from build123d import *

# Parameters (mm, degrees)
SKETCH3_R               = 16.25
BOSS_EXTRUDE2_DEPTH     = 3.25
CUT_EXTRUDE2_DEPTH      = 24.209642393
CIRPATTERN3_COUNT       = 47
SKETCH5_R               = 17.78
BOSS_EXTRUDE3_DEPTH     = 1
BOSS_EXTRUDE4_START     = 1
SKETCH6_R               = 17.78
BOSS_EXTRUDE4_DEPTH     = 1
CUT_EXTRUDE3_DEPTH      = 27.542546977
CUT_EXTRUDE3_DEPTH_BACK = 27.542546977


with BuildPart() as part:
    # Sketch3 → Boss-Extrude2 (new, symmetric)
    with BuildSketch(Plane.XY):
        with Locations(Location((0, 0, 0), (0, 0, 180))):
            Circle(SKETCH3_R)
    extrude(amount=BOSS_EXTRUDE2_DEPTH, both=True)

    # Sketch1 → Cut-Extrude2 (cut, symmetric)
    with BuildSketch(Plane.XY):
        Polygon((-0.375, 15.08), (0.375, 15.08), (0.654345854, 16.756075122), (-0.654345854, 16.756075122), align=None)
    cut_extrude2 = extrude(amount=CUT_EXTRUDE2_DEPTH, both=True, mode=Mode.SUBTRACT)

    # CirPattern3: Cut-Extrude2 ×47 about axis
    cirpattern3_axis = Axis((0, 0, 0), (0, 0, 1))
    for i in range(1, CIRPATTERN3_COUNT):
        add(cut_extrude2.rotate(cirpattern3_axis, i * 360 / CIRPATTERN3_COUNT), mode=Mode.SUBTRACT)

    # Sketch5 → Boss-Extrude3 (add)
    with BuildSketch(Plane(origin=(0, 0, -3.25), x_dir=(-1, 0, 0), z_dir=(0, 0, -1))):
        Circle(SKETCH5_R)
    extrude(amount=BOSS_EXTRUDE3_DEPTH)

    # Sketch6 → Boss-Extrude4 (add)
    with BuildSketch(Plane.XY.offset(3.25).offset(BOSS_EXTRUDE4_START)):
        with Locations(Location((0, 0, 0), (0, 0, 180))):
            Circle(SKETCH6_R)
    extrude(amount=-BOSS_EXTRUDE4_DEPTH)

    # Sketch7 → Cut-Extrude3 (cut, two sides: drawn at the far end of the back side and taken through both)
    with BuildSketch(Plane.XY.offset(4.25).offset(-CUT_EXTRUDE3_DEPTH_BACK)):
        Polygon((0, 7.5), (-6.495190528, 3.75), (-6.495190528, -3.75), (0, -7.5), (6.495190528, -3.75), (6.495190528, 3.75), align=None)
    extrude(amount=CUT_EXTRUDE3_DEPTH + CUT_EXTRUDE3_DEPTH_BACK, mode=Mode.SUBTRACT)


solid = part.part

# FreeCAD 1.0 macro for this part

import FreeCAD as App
import Part
import Sketcher
from FreeCAD import Vector
Q = App.Units.Quantity

doc = App.newDocument("Part")
body = doc.addObject("PartDesign::Body", "Body")

# Sketch on XY plane
sketch1 = doc.addObject("Sketcher::SketchObject", "Sketch")
body.addObject(sketch1)
sketch1.AttachmentSupport = (doc.XY_Plane, [""])
sketch1.MapMode = "FlatFace"
sketch1.addGeometry(Part.Circle(Vector(0, 0, 0), Vector(0, 0, 1), 16.25), False)
sketch1.addConstraint(Sketcher.Constraint("Coincident", 0, 3, -1, 1))
sketch1.addConstraint(Sketcher.Constraint("Diameter", 0, Q("32.5 mm")))
pad1 = doc.addObject("PartDesign::Pad", "Pad")
body.addObject(pad1)
pad1.Profile = sketch1
pad1.Length = 6.5
pad1.Midplane = True

# Sketch on XY plane
sketch2 = doc.addObject("Sketcher::SketchObject", "Sketch001")
body.addObject(sketch2)
sketch2.AttachmentSupport = (doc.XY_Plane, [""])
sketch2.MapMode = "FlatFace"
sketch2.addGeometry(Part.LineSegment(Vector(-0.375, 15.08, 0), Vector(0.375, 15.08, 0)), False)
sketch2.addGeometry(Part.LineSegment(Vector(0.375, 15.08, 0), Vector(0.654346, 16.756075, 0)), False)
sketch2.addGeometry(Part.LineSegment(Vector(0.654346, 16.756075, 0), Vector(-0.654346, 16.756075, 0)), False)
sketch2.addGeometry(Part.LineSegment(Vector(-0.654346, 16.756075, 0), Vector(-0.375, 15.08, 0)), False)
sketch2.addConstraint(Sketcher.Constraint("Coincident", 0, 2, 1, 1))
sketch2.addConstraint(Sketcher.Constraint("Coincident", 1, 2, 2, 1))
sketch2.addConstraint(Sketcher.Constraint("Coincident", 2, 2, 3, 1))
sketch2.addConstraint(Sketcher.Constraint("Coincident", 3, 2, 0, 1))
sketch2.addConstraint(Sketcher.Constraint("Horizontal", 0))
sketch2.addConstraint(Sketcher.Constraint("Horizontal", 2))
sketch2.addConstraint(Sketcher.Constraint("Equal", 1, 3))
sketch2.addConstraint(Sketcher.Constraint("DistanceX", 0, 1, 0, 2, Q("0.75 mm")))
sketch2.addConstraint(Sketcher.Constraint("DistanceY", -1, 1, 0, 2, Q("15.08 mm")))
sketch2.addConstraint(Sketcher.Constraint("DistanceX", -1, 1, 0, 2, Q("0.375 mm")))
sketch2.addConstraint(Sketcher.Constraint("DistanceX", 2, 2, 2, 1, Q("1.308692 mm")))
sketch2.addConstraint(Sketcher.Constraint("Distance", 1, Q("1.699194 mm")))
pocket1 = doc.addObject("PartDesign::Pocket", "Pocket")
body.addObject(pocket1)
pocket1.Profile = sketch2
pocket1.Length = 48.419285
pocket1.Midplane = True
doc.recompute()

polarpattern = doc.addObject("PartDesign::PolarPattern", "PolarPattern")
body.addObject(polarpattern)
polarpattern.Originals = [pocket1]
polarpattern.Axis = (doc.Z_Axis, [""])
polarpattern.Angle = 360
polarpattern.Occurrences = 47
body.Tip = polarpattern

# Sketch on XY plane
sketch3 = doc.addObject("Sketcher::SketchObject", "Sketch002")
body.addObject(sketch3)
sketch3.AttachmentSupport = (doc.XY_Plane, [""])
sketch3.MapMode = "FlatFace"
sketch3.AttachmentOffset = App.Placement(Vector(0, 0, -3.25), App.Rotation())
sketch3.addGeometry(Part.Circle(Vector(0, 0, 0), Vector(0, 0, 1), 17.78), False)
sketch3.addConstraint(Sketcher.Constraint("Coincident", 0, 3, -1, 1))
sketch3.addConstraint(Sketcher.Constraint("Diameter", 0, Q("35.56 mm")))
pad2 = doc.addObject("PartDesign::Pad", "Pad001")
body.addObject(pad2)
pad2.Profile = sketch3
pad2.Length = 1
pad2.Reversed = True

# Sketch on XY plane
sketch4 = doc.addObject("Sketcher::SketchObject", "Sketch003")
body.addObject(sketch4)
sketch4.AttachmentSupport = (doc.XY_Plane, [""])
sketch4.MapMode = "FlatFace"
sketch4.AttachmentOffset = App.Placement(Vector(0, 0, 4.25), App.Rotation())
sketch4.addGeometry(Part.Circle(Vector(0, 0, 0), Vector(0, 0, 1), 17.78), False)
sketch4.addConstraint(Sketcher.Constraint("Coincident", 0, 3, -1, 1))
sketch4.addConstraint(Sketcher.Constraint("Diameter", 0, Q("35.56 mm")))
pad3 = doc.addObject("PartDesign::Pad", "Pad002")
body.addObject(pad3)
pad3.Profile = sketch4
pad3.Length = 1
pad3.Reversed = True

# Sketch on XY plane
sketch5 = doc.addObject("Sketcher::SketchObject", "Sketch004")
body.addObject(sketch5)
sketch5.AttachmentSupport = (doc.XY_Plane, [""])
sketch5.MapMode = "FlatFace"
sketch5.AttachmentOffset = App.Placement(Vector(0, 0, 4.25), App.Rotation())
sketch5.addGeometry(Part.LineSegment(Vector(0, 7.5, 0), Vector(-6.495191, 3.75, 0)), False)
sketch5.addGeometry(Part.LineSegment(Vector(-6.495191, 3.75, 0), Vector(-6.495191, -3.75, 0)), False)
sketch5.addGeometry(Part.LineSegment(Vector(-6.495191, -3.75, 0), Vector(0, -7.5, 0)), False)
sketch5.addGeometry(Part.LineSegment(Vector(0, -7.5, 0), Vector(6.495191, -3.75, 0)), False)
sketch5.addGeometry(Part.LineSegment(Vector(6.495191, -3.75, 0), Vector(6.495191, 3.75, 0)), False)
sketch5.addGeometry(Part.LineSegment(Vector(6.495191, 3.75, 0), Vector(0, 7.5, 0)), False)
sketch5.addConstraint(Sketcher.Constraint("Coincident", 0, 2, 1, 1))
sketch5.addConstraint(Sketcher.Constraint("Coincident", 1, 2, 2, 1))
sketch5.addConstraint(Sketcher.Constraint("Coincident", 2, 2, 3, 1))
sketch5.addConstraint(Sketcher.Constraint("Coincident", 3, 2, 4, 1))
sketch5.addConstraint(Sketcher.Constraint("Coincident", 4, 2, 5, 1))
sketch5.addConstraint(Sketcher.Constraint("Coincident", 5, 2, 0, 1))
sketch5.addConstraint(Sketcher.Constraint("Vertical", 1))
sketch5.addConstraint(Sketcher.Constraint("Vertical", 4))
sketch5.addConstraint(Sketcher.Constraint("Symmetric", 0, 2, 3, 2, -1, 1))
sketch5.addConstraint(Sketcher.Constraint("Symmetric", 2, 2, 5, 2, -1, 1))
sketch5.addConstraint(Sketcher.Constraint("PointOnObject", 2, 2, -2))
sketch5.addConstraint(Sketcher.Constraint("Parallel", 2, 5))
sketch5.addConstraint(Sketcher.Constraint("Horizontal", 1, 2, 3, 2))
sketch5.addConstraint(Sketcher.Constraint("Angle", 0, Q("-150 deg")))
sketch5.addConstraint(Sketcher.Constraint("DistanceY", 1, 2, 1, 1, Q("7.5 mm")))
sketch5.addConstraint(Sketcher.Constraint("DistanceY", 2, 2, 5, 2, Q("15 mm")))
pocket2 = doc.addObject("PartDesign::Pocket", "Pocket001")
body.addObject(pocket2)
pocket2.Profile = sketch5
pocket2.Type = "ThroughAll"
pocket2.Midplane = True

doc.recompute()
